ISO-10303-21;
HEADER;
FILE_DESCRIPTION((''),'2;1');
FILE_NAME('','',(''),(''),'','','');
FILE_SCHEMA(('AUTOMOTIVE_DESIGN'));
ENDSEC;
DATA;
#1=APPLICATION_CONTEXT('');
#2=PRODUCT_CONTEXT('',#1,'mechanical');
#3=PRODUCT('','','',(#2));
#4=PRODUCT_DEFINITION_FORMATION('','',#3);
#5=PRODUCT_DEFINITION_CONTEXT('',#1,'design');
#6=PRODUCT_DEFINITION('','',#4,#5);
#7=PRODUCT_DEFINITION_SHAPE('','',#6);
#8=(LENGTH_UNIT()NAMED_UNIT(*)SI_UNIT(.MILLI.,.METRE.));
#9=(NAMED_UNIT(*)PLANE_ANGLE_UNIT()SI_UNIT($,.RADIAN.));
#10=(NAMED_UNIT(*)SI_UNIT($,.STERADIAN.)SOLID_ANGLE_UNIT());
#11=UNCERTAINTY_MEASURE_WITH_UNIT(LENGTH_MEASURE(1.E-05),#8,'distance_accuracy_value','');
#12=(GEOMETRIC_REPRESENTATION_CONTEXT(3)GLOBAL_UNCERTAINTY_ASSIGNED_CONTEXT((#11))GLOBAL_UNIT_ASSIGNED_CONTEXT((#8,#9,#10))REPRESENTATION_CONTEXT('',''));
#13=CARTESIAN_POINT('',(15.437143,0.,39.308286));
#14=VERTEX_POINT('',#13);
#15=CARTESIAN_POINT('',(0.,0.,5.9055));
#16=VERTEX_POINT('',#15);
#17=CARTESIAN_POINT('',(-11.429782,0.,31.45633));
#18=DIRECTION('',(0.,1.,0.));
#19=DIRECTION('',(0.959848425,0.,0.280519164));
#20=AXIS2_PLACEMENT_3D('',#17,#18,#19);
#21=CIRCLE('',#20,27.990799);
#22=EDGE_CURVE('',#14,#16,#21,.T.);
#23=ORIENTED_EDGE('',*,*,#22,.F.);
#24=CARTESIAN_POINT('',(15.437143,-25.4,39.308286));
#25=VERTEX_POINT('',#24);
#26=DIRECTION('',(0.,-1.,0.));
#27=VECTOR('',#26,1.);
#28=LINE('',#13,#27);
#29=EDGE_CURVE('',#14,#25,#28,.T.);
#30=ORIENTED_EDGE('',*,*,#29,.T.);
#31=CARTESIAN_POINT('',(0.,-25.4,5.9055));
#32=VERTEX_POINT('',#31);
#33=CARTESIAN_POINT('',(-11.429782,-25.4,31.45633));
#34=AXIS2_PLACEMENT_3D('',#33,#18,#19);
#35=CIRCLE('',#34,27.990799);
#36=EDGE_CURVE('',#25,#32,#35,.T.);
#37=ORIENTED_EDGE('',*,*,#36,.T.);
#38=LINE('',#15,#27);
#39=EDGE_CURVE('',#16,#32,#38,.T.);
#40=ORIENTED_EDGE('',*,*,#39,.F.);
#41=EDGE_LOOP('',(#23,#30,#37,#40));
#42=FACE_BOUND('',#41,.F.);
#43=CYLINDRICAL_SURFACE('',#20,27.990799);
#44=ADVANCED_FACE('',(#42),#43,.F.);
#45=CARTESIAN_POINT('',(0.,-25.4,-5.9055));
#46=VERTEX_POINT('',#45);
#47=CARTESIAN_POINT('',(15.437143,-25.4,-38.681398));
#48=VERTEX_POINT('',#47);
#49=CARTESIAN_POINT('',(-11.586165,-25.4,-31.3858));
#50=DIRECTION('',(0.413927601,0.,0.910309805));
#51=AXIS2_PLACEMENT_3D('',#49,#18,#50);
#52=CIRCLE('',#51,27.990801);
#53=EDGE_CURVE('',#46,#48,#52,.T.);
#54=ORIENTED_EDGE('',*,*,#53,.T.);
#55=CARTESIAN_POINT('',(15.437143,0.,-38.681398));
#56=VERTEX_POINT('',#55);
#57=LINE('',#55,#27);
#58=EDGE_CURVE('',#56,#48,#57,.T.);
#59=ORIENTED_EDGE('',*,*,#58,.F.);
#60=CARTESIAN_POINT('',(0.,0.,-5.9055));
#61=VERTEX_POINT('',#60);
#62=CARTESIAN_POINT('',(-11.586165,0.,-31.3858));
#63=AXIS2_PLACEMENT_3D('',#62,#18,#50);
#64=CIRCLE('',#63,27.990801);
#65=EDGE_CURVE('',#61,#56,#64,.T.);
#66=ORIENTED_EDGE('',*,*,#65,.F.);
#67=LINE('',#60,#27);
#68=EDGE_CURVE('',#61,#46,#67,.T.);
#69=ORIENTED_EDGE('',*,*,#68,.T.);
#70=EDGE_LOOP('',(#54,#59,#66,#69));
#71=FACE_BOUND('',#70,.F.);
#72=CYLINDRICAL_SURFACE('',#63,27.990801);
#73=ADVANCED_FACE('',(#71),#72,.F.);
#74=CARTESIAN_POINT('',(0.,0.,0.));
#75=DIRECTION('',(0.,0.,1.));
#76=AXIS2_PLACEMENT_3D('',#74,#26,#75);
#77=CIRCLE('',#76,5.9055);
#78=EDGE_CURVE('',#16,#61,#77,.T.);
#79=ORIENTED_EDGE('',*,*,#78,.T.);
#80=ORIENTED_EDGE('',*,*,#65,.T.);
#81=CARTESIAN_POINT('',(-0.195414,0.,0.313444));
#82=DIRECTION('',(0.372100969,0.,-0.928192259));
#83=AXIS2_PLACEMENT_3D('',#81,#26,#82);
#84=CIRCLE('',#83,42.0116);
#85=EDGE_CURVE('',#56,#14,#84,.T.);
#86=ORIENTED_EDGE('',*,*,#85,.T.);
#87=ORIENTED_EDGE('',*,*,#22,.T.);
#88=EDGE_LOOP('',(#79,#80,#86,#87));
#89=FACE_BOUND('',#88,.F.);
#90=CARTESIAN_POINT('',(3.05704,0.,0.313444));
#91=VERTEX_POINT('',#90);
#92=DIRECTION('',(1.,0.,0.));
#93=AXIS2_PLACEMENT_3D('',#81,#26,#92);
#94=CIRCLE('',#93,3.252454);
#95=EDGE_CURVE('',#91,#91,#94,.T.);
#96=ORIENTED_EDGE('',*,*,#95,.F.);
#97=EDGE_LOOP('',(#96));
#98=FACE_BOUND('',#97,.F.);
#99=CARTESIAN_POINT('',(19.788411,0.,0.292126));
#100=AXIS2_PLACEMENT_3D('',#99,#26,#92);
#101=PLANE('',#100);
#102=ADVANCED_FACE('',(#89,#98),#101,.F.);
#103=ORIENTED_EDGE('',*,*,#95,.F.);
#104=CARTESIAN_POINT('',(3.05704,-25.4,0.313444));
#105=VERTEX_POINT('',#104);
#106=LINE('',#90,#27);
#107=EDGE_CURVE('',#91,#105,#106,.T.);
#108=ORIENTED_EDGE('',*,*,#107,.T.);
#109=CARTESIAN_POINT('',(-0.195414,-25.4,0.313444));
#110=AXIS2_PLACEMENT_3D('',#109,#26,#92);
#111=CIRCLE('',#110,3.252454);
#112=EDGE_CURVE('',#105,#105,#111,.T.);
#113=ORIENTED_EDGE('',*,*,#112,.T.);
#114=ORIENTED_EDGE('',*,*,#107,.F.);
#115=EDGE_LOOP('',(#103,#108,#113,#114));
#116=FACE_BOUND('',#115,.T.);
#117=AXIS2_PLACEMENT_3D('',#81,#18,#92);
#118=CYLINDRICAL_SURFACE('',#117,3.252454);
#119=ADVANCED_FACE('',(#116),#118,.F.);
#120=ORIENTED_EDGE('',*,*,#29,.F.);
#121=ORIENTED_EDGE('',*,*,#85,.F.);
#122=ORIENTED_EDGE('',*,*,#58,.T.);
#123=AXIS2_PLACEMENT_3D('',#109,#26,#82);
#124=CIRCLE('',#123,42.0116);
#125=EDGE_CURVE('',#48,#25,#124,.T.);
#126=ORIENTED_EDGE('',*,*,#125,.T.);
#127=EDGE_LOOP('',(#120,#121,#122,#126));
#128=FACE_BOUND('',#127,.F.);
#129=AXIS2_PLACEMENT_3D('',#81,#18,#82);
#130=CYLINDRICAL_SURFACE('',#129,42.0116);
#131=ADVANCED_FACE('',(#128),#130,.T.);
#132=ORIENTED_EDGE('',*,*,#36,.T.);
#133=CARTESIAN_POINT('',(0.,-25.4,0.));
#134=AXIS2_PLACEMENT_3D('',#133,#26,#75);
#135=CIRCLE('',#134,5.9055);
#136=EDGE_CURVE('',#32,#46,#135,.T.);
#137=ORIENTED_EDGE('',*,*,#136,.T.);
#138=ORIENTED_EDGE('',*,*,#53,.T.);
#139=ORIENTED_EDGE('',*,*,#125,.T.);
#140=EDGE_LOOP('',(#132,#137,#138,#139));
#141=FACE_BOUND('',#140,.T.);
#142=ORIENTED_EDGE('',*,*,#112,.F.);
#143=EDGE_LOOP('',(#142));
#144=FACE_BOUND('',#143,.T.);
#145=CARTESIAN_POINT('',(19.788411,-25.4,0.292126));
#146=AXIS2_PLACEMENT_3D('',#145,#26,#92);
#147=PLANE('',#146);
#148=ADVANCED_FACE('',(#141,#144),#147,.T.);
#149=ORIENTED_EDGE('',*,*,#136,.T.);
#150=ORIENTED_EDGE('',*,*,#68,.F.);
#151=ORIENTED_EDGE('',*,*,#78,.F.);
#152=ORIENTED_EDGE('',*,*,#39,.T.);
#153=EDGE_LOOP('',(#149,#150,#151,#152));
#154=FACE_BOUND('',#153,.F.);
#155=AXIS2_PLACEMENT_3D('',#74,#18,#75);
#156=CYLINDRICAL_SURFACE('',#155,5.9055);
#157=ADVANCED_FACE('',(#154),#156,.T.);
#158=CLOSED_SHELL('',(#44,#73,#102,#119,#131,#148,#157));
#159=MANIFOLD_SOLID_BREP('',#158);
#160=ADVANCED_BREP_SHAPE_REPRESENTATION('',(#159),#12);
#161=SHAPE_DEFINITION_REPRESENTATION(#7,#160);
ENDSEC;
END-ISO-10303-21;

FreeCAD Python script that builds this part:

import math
import FreeCAD as App
import Part
import Sketcher

V = App.Vector
Q = App.Units.Quantity

doc = App.newDocument("Part")
body = doc.addObject("PartDesign::Body", "Body")

# Sketch on XZ plane
sketch1 = doc.addObject("Sketcher::SketchObject", "Sketch")
body.addObject(sketch1)
sketch1.AttachmentSupport = (doc.XZ_Plane, [""])
sketch1.MapMode = "FlatFace"
sketch1.addGeometry([
    Part.ArcOfCircle(Part.Circle(V(-11.4, 31.5, 0), V(0, 0, 1), 28), math.radians(-66), math.radians(16)),  # 0
    Part.ArcOfCircle(Part.Circle(V(0, 0, 0), V(0, 0, 1), 5.9), math.radians(90), math.radians(270)),  # 1
    Part.ArcOfCircle(Part.Circle(V(-11.6, -31.4, 0), V(0, 0, 1), 28), math.radians(-15), math.radians(66)),  # 2
    Part.ArcOfCircle(Part.Circle(V(-0.2, 0.3, 0), V(0, 0, 1), 42), math.radians(-68), math.radians(68)),  # 3
    Part.Circle(V(-0.2, 0.3, 0), V(0, 0, 1), 3.3),  # 4
], False)
sketch1.addConstraint([
    Sketcher.Constraint("Coincident", 0, 1, 1, 1),
    Sketcher.Constraint("Coincident", 1, 2, 2, 2),
    Sketcher.Constraint("Coincident", 2, 1, 3, 1),
    Sketcher.Constraint("Coincident", 3, 2, 0, 2),
    Sketcher.Constraint("Coincident", 1, 3, -1, 1),
    Sketcher.Constraint("Coincident", 4, 3, 3, 3),
    Sketcher.Constraint("Equal", 0, 2),
    Sketcher.Constraint("PointOnObject", 0, 1, -2),
    Sketcher.Constraint("PointOnObject", 1, 2, -2),
    Sketcher.Constraint("Vertical", 2, 1, 3, 2),
    Sketcher.Constraint("Radius", 0, Q("1.102 in")),
    Sketcher.Constraint("Radius", 3, Q("1.654 in")),
    Sketcher.Constraint("Radius", 1, Q("0.2325 in")),
    Sketcher.Constraint("Diameter", 4, Q("6.504908 mm")),
    Sketcher.Constraint("DistanceY", 2, 3, -1, 1, Q("31.3858 mm")),
    Sketcher.Constraint("DistanceX", 0, 3, -1, 1, Q("11.429782 mm")),
    Sketcher.Constraint("DistanceX", 2, 3, 3, 3, Q("11.390751 mm")),
])
pad1 = doc.addObject("PartDesign::Pad", "Pad")
body.addObject(pad1)
pad1.Profile = sketch1
pad1.Length = Q("1 in")

doc.recompute()
